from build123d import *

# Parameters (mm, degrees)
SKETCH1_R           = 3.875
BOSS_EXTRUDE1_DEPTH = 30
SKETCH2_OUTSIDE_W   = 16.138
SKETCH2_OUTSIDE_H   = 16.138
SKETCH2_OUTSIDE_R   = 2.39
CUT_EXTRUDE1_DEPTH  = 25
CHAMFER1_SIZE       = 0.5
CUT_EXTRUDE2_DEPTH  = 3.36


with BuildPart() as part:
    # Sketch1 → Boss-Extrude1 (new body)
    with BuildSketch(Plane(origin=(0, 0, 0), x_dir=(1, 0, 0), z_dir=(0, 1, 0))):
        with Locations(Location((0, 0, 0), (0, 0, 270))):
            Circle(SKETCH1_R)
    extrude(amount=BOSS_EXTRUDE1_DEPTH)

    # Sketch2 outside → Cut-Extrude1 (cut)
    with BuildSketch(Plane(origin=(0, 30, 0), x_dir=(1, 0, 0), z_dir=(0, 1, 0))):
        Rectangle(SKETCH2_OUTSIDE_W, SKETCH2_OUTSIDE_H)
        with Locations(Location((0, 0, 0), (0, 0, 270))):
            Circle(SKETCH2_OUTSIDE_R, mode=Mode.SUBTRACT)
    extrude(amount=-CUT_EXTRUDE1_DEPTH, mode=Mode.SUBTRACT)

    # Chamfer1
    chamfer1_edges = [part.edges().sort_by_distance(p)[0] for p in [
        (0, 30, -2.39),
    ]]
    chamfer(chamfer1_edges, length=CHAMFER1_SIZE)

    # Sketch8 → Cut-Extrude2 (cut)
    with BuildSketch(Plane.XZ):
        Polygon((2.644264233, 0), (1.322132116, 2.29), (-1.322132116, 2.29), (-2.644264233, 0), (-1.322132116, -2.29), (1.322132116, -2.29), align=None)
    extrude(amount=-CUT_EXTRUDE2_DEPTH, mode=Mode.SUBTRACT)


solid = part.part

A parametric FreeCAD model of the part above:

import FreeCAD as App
import Part
import Sketcher

V = App.Vector
Q = App.Units.Quantity


def edges_at(feature, points):
    """Names of the edges that pass closest to the given points."""
    edges = feature.Shape.Edges
    near = lambda p: min(range(len(edges)), key=lambda i: edges[i].distToShape(Part.Vertex(*p))[0])
    return sorted({f"Edge{near(p) + 1}" for p in points})

doc = App.newDocument("Part")
body = doc.addObject("PartDesign::Body", "Body")

sketch1 = body.newObject("Sketcher::SketchObject", "Sketch")
sketch1.AttachmentSupport = (doc.getObject("XZ_Plane"), [""])
sketch1.MapMode = "FlatFace"
sketch1.addGeometry(Part.Circle(V(0, 0, 0), V(0, 0, 1), 3.9), False)
sketch1.addConstraint([
    Sketcher.Constraint("Coincident", 0, 3, -1, 1),
    Sketcher.Constraint("Diameter", 0, Q("7.75 mm")),
])
pad1 = body.newObject("PartDesign::Pad", "Pad")
pad1.Profile = sketch1
pad1.Length = 30
pad1.Reversed = True

sketch2 = body.newObject("Sketcher::SketchObject", "Sketch001")
sketch2.AttachmentSupport = (doc.getObject("XZ_Plane"), [""])
sketch2.MapMode = "FlatFace"
sketch2.AttachmentOffset = App.Placement(V(0, 0, -30), App.Rotation())
sketch2.addGeometry([
    Part.LineSegment(V(-8.1, -8.1, 0), V(-8.1, 8.1, 0)),
    Part.LineSegment(V(-8.1, 8.1, 0), V(8.1, 8.1, 0)),
    Part.LineSegment(V(8.1, 8.1, 0), V(8.1, -8.1, 0)),
    Part.LineSegment(V(8.1, -8.1, 0), V(-8.1, -8.1, 0)),
    Part.Circle(V(0, 0, 0), V(0, 0, 1), 2.4),
], False)
sketch2.addConstraint([
    Sketcher.Constraint("Coincident", 0, 2, 1, 1),
    Sketcher.Constraint("Coincident", 1, 2, 2, 1),
    Sketcher.Constraint("Coincident", 2, 2, 3, 1),
    Sketcher.Constraint("Coincident", 3, 2, 0, 1),
    Sketcher.Constraint("Vertical", 0),
    Sketcher.Constraint("Horizontal", 1),
    Sketcher.Constraint("Vertical", 2),
    Sketcher.Constraint("Horizontal", 3),
    Sketcher.Constraint("Coincident", 4, 3, -1, 1),
    Sketcher.Constraint("Symmetric", 0, 2, 2, 2, -1, 1),
    Sketcher.Constraint("Equal", 3, 0),
    Sketcher.Constraint("Diameter", 4, Q("4.78 mm")),
    Sketcher.Constraint("DistanceX", 1, 1, 1, 2, Q("16.138 mm")),
])
pocket1 = body.newObject("PartDesign::Pocket", "Pocket")
pocket1.Profile = sketch2
pocket1.Length = 25
pocket1.Reversed = True
doc.recompute()

chamfer = body.newObject("PartDesign::Chamfer", "Chamfer")
chamfer.Base = (pocket1, edges_at(pocket1, [(0, 30, -2.39)]))
chamfer.Size = 0.5

sketch3 = body.newObject("Sketcher::SketchObject", "Sketch002")
sketch3.AttachmentSupport = (doc.getObject("XZ_Plane"), [""])
sketch3.MapMode = "FlatFace"
sketch3.addGeometry([
    Part.LineSegment(V(2.6, 0, 0), V(1.3, 2.3, 0)),
    Part.LineSegment(V(1.3, 2.3, 0), V(-1.3, 2.3, 0)),
    Part.LineSegment(V(-1.3, 2.3, 0), V(-2.6, 0, 0)),
    Part.LineSegment(V(-2.6, 0, 0), V(-1.3, -2.3, 0)),
    Part.LineSegment(V(-1.3, -2.3, 0), V(1.3, -2.3, 0)),
    Part.LineSegment(V(1.3, -2.3, 0), V(2.6, 0, 0)),
], False)
sketch3.addConstraint([
    Sketcher.Constraint("Coincident", 0, 2, 1, 1),
    Sketcher.Constraint("Coincident", 1, 2, 2, 1),
    Sketcher.Constraint("Coincident", 2, 2, 3, 1),
    Sketcher.Constraint("Coincident", 3, 2, 4, 1),
    Sketcher.Constraint("Coincident", 4, 2, 5, 1),
    Sketcher.Constraint("Coincident", 5, 2, 0, 1),
    Sketcher.Constraint("Horizontal", 1),
    Sketcher.Constraint("Horizontal", 4),
    Sketcher.Constraint("Symmetric", 0, 2, 3, 2, -1, 1),
    Sketcher.Constraint("Symmetric", 2, 2, 5, 2, -1, 1),
    Sketcher.Constraint("PointOnObject", 2, 2, -1),
    Sketcher.Constraint("Parallel", 2, 5),
    Sketcher.Constraint("Vertical", 1, 2, 3, 2),
    Sketcher.Constraint("Angle", 0, Q("120 deg")),
    Sketcher.Constraint("DistanceY", -1, 1, 0, 2, Q("2.29 mm")),
    Sketcher.Constraint("DistanceX", 1, 2, 1, 1, Q("2.644264 mm")),
])
pocket2 = body.newObject("PartDesign::Pocket", "Pocket001")
pocket2.Profile = sketch3
pocket2.Length = 3.36

doc.recompute()
